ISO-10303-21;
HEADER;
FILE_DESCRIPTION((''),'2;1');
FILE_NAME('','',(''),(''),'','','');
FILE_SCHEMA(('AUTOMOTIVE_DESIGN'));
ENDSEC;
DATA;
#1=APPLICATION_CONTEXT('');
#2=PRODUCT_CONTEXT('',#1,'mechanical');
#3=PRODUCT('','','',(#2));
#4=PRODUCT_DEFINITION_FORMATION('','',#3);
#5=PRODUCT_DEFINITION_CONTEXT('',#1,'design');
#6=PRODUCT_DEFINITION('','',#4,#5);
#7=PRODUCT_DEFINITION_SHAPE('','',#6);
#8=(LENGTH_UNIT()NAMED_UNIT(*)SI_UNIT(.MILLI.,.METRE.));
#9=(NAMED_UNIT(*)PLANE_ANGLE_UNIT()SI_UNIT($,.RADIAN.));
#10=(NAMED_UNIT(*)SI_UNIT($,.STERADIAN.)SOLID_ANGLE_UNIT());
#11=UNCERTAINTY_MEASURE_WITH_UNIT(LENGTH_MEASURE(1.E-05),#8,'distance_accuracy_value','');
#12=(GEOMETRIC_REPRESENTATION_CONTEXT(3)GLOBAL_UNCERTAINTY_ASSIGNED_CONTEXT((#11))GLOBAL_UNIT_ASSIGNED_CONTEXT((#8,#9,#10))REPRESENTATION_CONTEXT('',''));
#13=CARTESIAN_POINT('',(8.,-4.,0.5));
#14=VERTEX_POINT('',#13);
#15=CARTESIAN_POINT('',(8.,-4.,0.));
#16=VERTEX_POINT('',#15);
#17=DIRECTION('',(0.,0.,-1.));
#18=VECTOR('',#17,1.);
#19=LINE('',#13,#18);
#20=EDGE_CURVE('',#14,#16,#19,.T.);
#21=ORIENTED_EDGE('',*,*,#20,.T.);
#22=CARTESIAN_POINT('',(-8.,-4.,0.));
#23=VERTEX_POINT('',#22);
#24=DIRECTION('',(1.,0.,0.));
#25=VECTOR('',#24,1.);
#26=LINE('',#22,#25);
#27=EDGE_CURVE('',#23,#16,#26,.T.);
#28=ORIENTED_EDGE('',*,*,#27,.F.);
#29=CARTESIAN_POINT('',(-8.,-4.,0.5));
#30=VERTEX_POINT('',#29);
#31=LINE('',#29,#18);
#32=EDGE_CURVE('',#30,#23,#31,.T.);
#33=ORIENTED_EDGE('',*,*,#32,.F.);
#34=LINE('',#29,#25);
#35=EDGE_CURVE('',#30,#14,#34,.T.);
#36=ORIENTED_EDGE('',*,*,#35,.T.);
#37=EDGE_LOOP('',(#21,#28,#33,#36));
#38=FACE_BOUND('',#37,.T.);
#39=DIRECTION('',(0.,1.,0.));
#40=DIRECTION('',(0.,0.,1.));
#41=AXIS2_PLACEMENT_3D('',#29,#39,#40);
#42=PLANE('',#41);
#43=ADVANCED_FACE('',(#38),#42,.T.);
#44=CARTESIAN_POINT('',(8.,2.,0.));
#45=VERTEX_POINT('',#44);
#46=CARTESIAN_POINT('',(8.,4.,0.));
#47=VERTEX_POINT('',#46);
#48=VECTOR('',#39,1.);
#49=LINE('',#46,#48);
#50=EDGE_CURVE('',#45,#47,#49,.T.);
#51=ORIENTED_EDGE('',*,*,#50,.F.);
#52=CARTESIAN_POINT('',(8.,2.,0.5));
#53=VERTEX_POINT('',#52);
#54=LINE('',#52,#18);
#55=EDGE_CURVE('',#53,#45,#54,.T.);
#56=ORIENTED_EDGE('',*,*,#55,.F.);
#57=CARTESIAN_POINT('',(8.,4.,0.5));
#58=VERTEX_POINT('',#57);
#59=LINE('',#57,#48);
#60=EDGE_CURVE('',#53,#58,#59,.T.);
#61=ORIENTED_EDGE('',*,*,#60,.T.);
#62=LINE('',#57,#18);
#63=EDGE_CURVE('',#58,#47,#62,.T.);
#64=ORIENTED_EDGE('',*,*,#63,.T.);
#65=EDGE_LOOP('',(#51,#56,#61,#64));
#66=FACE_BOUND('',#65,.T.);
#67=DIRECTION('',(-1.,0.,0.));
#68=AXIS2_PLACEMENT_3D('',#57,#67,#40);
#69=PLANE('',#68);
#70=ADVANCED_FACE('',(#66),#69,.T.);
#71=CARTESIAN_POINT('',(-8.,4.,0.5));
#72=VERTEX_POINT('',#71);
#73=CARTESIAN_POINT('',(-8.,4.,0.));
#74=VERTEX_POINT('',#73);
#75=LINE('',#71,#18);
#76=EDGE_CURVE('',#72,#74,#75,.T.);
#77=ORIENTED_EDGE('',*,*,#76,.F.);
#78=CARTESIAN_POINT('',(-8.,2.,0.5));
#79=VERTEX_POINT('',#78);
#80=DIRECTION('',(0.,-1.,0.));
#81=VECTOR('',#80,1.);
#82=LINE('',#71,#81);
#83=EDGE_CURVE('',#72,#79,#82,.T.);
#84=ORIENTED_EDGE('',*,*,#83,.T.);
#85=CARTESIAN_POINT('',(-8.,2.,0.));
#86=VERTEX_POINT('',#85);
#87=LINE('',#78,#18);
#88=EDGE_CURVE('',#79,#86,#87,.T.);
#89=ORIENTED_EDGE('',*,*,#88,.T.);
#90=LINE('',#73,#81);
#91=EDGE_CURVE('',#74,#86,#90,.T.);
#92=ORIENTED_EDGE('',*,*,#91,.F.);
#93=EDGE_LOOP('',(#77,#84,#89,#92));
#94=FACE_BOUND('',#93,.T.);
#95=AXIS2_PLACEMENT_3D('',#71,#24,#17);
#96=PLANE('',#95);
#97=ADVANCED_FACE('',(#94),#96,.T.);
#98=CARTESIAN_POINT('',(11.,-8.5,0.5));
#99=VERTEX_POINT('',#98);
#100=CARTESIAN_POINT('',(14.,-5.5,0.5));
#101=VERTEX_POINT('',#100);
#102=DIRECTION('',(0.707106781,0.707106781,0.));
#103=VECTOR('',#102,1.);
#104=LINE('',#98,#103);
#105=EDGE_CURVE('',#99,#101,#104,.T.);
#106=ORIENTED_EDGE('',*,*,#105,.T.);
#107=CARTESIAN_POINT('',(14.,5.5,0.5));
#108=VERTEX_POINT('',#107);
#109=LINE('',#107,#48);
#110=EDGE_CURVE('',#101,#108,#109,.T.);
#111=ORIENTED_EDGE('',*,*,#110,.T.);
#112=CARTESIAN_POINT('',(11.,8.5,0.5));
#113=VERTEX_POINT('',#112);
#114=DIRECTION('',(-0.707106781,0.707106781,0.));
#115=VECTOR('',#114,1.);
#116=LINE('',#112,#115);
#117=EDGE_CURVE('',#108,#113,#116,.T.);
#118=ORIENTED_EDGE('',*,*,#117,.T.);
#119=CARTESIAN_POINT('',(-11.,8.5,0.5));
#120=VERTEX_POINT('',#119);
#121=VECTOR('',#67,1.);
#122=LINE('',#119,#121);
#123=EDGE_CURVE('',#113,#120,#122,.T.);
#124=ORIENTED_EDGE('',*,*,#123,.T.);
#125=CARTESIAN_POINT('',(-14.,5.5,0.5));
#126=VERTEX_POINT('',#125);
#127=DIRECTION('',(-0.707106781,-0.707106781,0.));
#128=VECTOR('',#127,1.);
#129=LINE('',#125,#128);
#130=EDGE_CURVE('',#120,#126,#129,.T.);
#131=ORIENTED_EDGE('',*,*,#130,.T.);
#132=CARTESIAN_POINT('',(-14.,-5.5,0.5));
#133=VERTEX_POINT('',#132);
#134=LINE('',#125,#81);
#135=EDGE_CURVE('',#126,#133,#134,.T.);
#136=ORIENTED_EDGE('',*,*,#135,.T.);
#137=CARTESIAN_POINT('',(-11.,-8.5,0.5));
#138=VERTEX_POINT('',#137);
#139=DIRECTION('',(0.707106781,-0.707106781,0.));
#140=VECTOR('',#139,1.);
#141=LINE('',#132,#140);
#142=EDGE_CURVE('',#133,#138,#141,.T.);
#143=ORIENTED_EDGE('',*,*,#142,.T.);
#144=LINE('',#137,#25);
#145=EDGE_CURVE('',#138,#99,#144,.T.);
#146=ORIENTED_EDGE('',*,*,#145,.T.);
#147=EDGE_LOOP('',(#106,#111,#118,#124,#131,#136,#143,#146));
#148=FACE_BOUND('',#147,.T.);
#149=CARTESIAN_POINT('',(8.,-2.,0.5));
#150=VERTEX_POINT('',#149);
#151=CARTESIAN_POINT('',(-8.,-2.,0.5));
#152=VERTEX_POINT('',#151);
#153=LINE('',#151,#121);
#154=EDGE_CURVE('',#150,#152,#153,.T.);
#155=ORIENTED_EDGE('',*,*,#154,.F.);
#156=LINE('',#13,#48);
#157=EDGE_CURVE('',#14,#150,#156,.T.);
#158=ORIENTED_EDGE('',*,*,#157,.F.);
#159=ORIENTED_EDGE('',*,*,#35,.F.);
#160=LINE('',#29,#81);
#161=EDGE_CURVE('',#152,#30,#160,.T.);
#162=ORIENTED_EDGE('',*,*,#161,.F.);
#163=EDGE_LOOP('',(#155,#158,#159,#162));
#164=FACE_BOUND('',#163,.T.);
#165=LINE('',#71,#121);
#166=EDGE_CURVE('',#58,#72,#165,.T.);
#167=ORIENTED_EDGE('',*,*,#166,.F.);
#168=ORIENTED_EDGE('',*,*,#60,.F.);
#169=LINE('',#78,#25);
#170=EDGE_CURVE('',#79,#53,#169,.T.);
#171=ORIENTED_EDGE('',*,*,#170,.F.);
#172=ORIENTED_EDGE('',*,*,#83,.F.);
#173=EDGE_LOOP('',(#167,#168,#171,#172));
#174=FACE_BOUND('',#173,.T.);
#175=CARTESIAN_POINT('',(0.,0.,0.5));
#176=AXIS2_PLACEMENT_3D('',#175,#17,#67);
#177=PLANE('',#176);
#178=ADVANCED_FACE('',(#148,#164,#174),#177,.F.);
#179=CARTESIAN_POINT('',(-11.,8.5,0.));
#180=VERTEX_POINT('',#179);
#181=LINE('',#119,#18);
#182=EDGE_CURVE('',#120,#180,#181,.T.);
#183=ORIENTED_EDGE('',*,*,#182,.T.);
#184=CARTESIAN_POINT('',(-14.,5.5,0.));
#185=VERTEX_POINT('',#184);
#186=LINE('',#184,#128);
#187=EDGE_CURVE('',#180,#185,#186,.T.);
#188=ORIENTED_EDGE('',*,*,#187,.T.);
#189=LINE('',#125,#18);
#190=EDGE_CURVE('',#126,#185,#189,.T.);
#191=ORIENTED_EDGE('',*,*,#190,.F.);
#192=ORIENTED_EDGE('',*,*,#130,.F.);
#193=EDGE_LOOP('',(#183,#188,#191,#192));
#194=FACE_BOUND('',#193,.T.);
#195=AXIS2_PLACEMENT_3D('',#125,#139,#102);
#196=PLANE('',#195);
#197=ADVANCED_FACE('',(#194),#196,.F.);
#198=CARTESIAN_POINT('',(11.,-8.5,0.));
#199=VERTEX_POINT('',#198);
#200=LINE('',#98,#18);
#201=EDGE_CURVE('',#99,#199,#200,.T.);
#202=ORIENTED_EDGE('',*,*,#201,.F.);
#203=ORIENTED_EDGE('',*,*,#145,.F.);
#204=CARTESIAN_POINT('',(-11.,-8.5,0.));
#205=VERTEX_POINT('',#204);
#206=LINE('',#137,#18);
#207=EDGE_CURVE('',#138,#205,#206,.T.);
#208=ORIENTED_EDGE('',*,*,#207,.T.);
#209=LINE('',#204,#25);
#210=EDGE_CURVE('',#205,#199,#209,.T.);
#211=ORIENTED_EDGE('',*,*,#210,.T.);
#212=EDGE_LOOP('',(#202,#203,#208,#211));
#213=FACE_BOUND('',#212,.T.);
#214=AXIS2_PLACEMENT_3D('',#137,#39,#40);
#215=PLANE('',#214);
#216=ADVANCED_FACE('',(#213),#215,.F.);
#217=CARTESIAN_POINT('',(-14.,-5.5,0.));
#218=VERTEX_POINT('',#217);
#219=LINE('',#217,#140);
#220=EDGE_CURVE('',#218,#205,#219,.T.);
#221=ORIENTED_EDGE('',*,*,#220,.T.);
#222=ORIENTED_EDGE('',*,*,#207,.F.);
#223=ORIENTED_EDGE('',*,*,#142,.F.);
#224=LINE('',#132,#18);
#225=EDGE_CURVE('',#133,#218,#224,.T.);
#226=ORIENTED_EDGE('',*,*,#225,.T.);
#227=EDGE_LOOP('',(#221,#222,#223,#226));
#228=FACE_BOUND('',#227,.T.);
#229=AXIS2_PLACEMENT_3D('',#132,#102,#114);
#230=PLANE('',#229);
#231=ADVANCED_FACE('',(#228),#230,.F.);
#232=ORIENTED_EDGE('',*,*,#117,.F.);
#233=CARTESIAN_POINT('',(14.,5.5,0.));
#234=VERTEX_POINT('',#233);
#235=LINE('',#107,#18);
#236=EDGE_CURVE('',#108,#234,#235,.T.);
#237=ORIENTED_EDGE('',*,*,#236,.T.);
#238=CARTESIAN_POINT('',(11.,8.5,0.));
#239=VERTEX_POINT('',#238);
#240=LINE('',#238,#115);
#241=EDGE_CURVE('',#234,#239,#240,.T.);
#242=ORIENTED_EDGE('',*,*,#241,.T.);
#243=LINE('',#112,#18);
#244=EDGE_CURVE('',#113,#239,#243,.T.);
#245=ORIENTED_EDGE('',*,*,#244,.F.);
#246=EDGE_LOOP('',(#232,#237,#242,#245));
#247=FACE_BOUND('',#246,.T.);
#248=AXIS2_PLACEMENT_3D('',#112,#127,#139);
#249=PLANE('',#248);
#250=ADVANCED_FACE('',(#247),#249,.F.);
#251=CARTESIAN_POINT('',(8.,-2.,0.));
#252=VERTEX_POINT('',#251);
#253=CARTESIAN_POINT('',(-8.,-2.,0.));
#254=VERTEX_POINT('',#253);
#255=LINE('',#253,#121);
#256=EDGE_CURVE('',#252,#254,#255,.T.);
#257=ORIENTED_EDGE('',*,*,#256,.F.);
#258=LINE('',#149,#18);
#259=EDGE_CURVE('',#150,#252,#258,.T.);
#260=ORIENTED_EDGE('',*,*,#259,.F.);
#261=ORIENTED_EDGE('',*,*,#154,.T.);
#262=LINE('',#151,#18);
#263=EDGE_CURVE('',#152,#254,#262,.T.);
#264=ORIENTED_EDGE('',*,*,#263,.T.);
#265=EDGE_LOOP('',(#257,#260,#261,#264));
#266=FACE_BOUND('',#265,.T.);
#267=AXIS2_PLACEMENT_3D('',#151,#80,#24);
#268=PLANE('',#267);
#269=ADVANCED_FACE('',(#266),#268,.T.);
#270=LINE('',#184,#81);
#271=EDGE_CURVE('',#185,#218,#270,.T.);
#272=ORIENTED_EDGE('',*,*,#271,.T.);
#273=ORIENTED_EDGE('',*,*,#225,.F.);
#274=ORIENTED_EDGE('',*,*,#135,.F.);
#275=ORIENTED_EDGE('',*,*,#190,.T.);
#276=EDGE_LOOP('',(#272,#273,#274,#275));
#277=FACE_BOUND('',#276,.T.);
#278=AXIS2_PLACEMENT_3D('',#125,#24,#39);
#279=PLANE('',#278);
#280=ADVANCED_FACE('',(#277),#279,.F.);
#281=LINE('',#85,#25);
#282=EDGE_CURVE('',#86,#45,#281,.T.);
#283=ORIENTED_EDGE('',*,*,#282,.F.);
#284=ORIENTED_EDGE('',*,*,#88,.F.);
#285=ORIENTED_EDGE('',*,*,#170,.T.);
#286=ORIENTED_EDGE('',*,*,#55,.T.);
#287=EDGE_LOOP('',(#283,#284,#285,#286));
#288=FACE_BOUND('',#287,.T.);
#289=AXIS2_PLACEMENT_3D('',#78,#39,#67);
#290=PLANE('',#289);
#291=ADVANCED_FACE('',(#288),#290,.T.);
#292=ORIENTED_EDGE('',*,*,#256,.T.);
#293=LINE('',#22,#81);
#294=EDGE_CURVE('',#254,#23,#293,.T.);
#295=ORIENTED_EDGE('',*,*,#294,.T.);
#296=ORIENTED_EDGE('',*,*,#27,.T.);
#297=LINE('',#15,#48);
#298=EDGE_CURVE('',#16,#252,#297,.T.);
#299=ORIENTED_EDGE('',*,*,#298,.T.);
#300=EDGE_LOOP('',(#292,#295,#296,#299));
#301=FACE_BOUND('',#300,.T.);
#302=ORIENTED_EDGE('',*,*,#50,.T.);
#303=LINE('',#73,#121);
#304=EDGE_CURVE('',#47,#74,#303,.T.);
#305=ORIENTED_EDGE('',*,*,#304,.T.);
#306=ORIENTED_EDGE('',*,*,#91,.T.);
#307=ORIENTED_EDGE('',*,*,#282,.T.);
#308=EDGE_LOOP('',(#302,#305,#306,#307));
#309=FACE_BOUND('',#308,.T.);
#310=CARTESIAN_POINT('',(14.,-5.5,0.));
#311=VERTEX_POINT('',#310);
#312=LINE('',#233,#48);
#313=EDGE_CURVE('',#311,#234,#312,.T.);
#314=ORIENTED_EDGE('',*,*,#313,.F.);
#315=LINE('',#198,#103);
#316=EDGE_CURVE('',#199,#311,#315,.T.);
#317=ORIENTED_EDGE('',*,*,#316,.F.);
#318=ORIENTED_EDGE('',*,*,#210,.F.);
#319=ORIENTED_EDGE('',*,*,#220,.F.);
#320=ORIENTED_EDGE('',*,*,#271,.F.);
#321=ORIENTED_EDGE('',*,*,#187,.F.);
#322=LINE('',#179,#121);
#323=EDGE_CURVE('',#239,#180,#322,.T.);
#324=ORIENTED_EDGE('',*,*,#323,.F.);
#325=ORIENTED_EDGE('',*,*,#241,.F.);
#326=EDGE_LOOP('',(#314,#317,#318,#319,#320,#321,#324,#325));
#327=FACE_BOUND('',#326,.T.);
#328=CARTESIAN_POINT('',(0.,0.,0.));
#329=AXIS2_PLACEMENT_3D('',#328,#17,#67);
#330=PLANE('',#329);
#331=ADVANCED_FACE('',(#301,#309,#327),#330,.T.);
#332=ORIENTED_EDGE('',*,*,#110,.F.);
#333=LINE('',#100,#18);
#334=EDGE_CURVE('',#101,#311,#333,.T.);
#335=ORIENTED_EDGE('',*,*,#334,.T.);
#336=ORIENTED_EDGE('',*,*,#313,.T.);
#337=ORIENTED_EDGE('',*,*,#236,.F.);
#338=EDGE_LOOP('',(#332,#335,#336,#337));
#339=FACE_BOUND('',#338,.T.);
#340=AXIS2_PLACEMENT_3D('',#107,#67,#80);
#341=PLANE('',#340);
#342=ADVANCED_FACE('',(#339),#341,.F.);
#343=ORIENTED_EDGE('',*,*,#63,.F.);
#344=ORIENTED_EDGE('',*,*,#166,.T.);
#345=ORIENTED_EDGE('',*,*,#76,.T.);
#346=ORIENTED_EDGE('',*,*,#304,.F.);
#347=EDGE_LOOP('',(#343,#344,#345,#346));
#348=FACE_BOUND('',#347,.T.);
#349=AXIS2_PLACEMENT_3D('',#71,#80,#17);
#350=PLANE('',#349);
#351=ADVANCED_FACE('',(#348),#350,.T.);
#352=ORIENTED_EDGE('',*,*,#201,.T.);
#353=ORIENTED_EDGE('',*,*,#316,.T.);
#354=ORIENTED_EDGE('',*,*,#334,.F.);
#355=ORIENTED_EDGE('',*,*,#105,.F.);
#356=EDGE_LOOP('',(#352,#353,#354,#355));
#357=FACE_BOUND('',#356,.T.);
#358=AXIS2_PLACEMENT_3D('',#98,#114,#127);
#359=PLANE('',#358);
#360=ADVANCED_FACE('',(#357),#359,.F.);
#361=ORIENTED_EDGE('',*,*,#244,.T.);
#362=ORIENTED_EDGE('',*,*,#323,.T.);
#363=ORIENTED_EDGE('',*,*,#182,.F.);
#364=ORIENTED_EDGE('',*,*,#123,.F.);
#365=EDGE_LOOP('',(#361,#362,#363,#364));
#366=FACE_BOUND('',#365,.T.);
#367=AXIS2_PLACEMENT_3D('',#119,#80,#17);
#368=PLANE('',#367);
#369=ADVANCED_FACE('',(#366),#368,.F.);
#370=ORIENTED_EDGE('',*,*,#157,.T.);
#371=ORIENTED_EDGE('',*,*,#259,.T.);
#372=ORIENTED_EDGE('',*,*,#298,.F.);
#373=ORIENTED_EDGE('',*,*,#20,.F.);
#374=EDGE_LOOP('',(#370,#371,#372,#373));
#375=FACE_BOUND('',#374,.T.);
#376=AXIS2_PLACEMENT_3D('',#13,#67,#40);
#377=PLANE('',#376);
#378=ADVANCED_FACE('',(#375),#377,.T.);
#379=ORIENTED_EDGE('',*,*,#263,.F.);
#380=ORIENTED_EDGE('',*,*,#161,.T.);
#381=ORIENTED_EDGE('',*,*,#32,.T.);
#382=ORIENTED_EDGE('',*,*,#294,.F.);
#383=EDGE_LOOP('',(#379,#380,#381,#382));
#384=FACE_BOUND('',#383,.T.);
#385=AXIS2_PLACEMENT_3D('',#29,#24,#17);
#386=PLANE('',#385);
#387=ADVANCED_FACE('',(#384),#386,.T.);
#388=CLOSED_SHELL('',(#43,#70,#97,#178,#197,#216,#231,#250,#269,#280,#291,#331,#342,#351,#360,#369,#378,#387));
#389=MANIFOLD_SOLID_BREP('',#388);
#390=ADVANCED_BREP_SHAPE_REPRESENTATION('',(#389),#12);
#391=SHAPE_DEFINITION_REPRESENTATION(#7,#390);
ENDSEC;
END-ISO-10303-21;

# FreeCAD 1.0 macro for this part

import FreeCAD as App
import Part
import Sketcher
from FreeCAD import Vector


def add_polygon(sketch, points):
    """Adds a closed chain of lines whose ends are joined by coincident constraints."""
    first, n = sketch.GeometryCount, len(points)
    for a, b in zip(points, points[1:] + points[:1]):
        sketch.addGeometry(Part.LineSegment(App.Vector(*a, 0), App.Vector(*b, 0)), False)
    for i in range(n):
        sketch.addConstraint(Sketcher.Constraint("Coincident", first + i, 2, first + (i + 1) % n, 1))

doc = App.newDocument("Part")
params = doc.addObject("Spreadsheet::Sheet", "Params")
for row, (alias, value) in enumerate([
    ("sketch1_width", "22 mm"),
    ("sketch1_width2", "16 mm"),
    ("sketch1_height", "11 mm"),
    ("sketch1_height2", "2 mm"),
    ("pad1_length", "0.5 mm"),
], start=1):
    params.set(f"A{row}", alias)
    params.set(f"B{row}", "=" + value)
    params.setAlias(f"B{row}", alias)

body = doc.addObject("PartDesign::Body", "Body")

# Sketch on XY plane
sketch1 = body.newObject("Sketcher::SketchObject", "Sketch")
sketch1.AttachmentSupport = (doc.getObject("XY_Plane"), [""])
sketch1.MapMode = "FlatFace"
add_polygon(sketch1, [(-11, 8.5), (-14, 5.5), (-14, -5.5), (-11, -8.5), (11, -8.5), (14, -5.5), (14, 5.5), (11, 8.5)])  # lines 0-7
add_polygon(sketch1, [(-8, -4), (-8, -2), (8, -2), (8, -4)])  # lines 8-11
add_polygon(sketch1, [(-8, 2), (-8, 4), (8, 4), (8, 2)])  # lines 12-15
sketch1.addConstraint([
    Sketcher.Constraint("Vertical", 1),
    Sketcher.Constraint("Horizontal", 3),
    Sketcher.Constraint("Vertical", 5),
    Sketcher.Constraint("Horizontal", 7),
    Sketcher.Constraint("Vertical", 8),
    Sketcher.Constraint("Horizontal", 9),
    Sketcher.Constraint("Vertical", 10),
    Sketcher.Constraint("Horizontal", 11),
    Sketcher.Constraint("Vertical", 12),
    Sketcher.Constraint("Horizontal", 13),
    Sketcher.Constraint("Vertical", 14),
    Sketcher.Constraint("Horizontal", 15),
    Sketcher.Constraint("Symmetric", 0, 2, 4, 2, -1, 1),
    Sketcher.Constraint("Symmetric", 2, 2, 6, 2, -1, 1),
    Sketcher.Constraint("Symmetric", 10, 2, 12, 2, -1, 1),
    Sketcher.Constraint("Symmetric", 8, 2, 14, 2, -1, 1),
    Sketcher.Constraint("Perpendicular", 0, 2),
    Sketcher.Constraint("Perpendicular", 2, 4),
    Sketcher.Constraint("Perpendicular", 4, 6),
    Sketcher.Constraint("Horizontal", 1, 2, 4, 2),
    Sketcher.Constraint("Vertical", 3, 2, 6, 2),
    Sketcher.Constraint("Vertical", 11, 2, 12, 2),
    Sketcher.Constraint("DistanceX", 3, 1, 3, 2, 22.0),
    Sketcher.Constraint("DistanceX", 9, 1, 9, 2, 16.0),
    Sketcher.Constraint("DistanceY", 1, 2, 1, 1, 11.0),
    Sketcher.Constraint("DistanceY", 8, 1, 8, 2, 2.0),
    Sketcher.Constraint("DistanceX", 0, 2, -1, 1, 14.0),
    Sketcher.Constraint("DistanceY", 8, 2, -1, 1, 2.0),
])
sketch1.setExpression("Constraints[38]", "Params.sketch1_width")
sketch1.setExpression("Constraints[39]", "Params.sketch1_width2")
sketch1.setExpression("Constraints[40]", "Params.sketch1_height")
sketch1.setExpression("Constraints[41]", "Params.sketch1_height2")
pad1 = body.newObject("PartDesign::Pad", "Pad")
pad1.Profile = sketch1
pad1.setExpression("Length", "Params.pad1_length")

doc.recompute()
